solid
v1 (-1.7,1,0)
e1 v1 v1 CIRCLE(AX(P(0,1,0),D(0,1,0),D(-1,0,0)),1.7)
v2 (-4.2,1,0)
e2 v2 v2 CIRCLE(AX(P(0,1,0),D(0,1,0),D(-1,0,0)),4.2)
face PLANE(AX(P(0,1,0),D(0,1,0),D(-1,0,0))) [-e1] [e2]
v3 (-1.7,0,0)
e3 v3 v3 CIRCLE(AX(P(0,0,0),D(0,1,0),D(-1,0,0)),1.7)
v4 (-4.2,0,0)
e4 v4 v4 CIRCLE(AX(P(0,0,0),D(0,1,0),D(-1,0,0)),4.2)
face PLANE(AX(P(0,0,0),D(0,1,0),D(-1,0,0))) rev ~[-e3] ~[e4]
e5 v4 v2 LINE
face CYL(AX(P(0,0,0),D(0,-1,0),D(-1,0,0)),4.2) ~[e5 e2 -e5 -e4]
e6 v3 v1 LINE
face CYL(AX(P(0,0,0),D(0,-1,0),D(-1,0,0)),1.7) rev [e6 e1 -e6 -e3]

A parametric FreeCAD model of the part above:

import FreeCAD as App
import Part
import Sketcher

V = App.Vector

doc = App.newDocument("Part")
body = doc.addObject("PartDesign::Body", "Body")

# Sketch on XZ plane
sketch1 = body.newObject("Sketcher::SketchObject", "Sketch")
sketch1.AttachmentSupport = (doc.getObject("XZ_Plane"), [""])
sketch1.MapMode = "FlatFace"
sketch1.addGeometry([
    Part.Circle(V(0, 0, 0), V(0, 0, 1), 4.2),
    Part.Circle(V(0, 0, 0), V(0, 0, 1), 1.7),
], False)
sketch1.addConstraint([
    Sketcher.Constraint("Coincident", 0, 3, -1, 1),
    Sketcher.Constraint("Coincident", 1, 3, -1, 1),
    Sketcher.Constraint("Diameter", 1, 3.4),
    Sketcher.Constraint("Diameter", 0, 8.4),
])
pad1 = body.newObject("PartDesign::Pad", "Pad")
pad1.Profile = sketch1
pad1.Length = 1
pad1.Reversed = True

doc.recompute()
